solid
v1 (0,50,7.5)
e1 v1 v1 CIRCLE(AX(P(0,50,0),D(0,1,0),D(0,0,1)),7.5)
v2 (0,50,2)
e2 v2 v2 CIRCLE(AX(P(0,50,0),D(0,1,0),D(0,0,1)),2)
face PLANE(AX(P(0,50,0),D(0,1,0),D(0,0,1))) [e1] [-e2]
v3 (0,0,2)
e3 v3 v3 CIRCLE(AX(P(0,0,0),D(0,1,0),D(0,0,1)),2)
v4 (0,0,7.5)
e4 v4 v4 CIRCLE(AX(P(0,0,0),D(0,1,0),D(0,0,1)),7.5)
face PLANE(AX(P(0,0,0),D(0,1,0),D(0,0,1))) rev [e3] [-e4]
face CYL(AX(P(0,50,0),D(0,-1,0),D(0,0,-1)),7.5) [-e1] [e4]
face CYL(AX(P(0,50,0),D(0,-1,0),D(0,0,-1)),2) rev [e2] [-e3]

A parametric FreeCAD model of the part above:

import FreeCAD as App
import Part
import Sketcher

V = App.Vector

doc = App.newDocument("Part")
body = doc.addObject("PartDesign::Body", "Body")

# Sketch on XZ plane
sketch1 = body.newObject("Sketcher::SketchObject", "Sketch")
sketch1.AttachmentSupport = (doc.getObject("XZ_Plane"), [""])
sketch1.MapMode = "FlatFace"
sketch1.addGeometry(Part.Circle(V(0, 0, 0), V(0, 0, 1), 7.5), False)
sketch1.addGeometry(Part.Circle(V(0, 0, 0), V(0, 0, 1), 2), False)
sketch1.addConstraint(Sketcher.Constraint("Coincident", 0, 3, -1, 1))
sketch1.addConstraint(Sketcher.Constraint("Coincident", 1, 3, -1, 1))
sketch1.addConstraint(Sketcher.Constraint("Diameter", 0, 15.0))
sketch1.addConstraint(Sketcher.Constraint("Diameter", 1, 4.0))
pad1 = body.newObject("PartDesign::Pad", "Pad")
pad1.Profile = sketch1
pad1.Length = 50
pad1.Reversed = True

doc.recompute()
